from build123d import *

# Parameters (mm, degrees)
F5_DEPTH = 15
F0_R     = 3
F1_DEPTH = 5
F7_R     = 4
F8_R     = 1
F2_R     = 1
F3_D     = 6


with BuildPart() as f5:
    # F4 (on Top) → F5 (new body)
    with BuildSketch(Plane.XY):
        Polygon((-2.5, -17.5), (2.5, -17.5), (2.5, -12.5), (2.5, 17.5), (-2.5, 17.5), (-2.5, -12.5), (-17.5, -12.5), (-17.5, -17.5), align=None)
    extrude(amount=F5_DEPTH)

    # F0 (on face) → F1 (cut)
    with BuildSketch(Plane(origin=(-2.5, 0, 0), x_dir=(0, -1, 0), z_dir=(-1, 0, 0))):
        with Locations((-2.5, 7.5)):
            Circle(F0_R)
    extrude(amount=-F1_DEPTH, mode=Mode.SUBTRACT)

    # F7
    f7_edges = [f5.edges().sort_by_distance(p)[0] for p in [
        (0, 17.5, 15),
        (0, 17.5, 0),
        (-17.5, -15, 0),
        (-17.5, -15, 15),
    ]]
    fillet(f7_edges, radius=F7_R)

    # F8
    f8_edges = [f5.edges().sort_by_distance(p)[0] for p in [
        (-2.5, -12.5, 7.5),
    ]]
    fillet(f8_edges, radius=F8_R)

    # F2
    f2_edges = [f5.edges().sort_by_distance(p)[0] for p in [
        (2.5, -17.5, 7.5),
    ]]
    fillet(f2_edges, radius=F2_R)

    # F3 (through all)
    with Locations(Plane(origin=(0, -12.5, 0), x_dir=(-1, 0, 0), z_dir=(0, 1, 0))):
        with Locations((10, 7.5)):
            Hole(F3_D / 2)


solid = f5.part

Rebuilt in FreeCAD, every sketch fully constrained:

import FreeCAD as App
import Part
import Sketcher
from FreeCAD import Vector
Q = App.Units.Quantity


def edges_at(feature, points):
    """Names of the edges that pass closest to the given points."""
    edges = feature.Shape.Edges
    near = lambda p: min(range(len(edges)), key=lambda i: edges[i].distToShape(Part.Vertex(*p))[0])
    return sorted({f"Edge{near(p) + 1}" for p in points})

doc = App.newDocument("Part")
body = doc.addObject("PartDesign::Body", "Body")

# Sketch on XY plane
sketch1 = body.newObject("Sketcher::SketchObject", "Sketch")
sketch1.AttachmentSupport = (doc.getObject("XY_Plane"), [""])
sketch1.MapMode = "FlatFace"
sketch1.addGeometry(Part.LineSegment(Vector(2, -18, 0), Vector(2, 18, 0)), False)
sketch1.addGeometry(Part.LineSegment(Vector(2, 18, 0), Vector(-2, 18, 0)), False)
sketch1.addGeometry(Part.LineSegment(Vector(-2, 18, 0), Vector(-2, -12, 0)), False)
sketch1.addGeometry(Part.LineSegment(Vector(-2, -12, 0), Vector(-18, -12, 0)), False)
sketch1.addGeometry(Part.LineSegment(Vector(-18, -12, 0), Vector(-18, -18, 0)), False)
sketch1.addGeometry(Part.LineSegment(Vector(-18, -18, 0), Vector(2, -18, 0)), False)
sketch1.addConstraint(Sketcher.Constraint("Coincident", 0, 2, 1, 1))
sketch1.addConstraint(Sketcher.Constraint("Coincident", 1, 2, 2, 1))
sketch1.addConstraint(Sketcher.Constraint("Coincident", 2, 2, 3, 1))
sketch1.addConstraint(Sketcher.Constraint("Coincident", 3, 2, 4, 1))
sketch1.addConstraint(Sketcher.Constraint("Coincident", 4, 2, 5, 1))
sketch1.addConstraint(Sketcher.Constraint("Coincident", 5, 2, 0, 1))
sketch1.addConstraint(Sketcher.Constraint("Vertical", 0))
sketch1.addConstraint(Sketcher.Constraint("Horizontal", 1))
sketch1.addConstraint(Sketcher.Constraint("Vertical", 2))
sketch1.addConstraint(Sketcher.Constraint("Horizontal", 3))
sketch1.addConstraint(Sketcher.Constraint("Vertical", 4))
sketch1.addConstraint(Sketcher.Constraint("Horizontal", 5))
sketch1.addConstraint(Sketcher.Constraint("Symmetric", 1, 2, 5, 2, -1, 1))
sketch1.addConstraint(Sketcher.Constraint("Equal", 1, 4))
sketch1.addConstraint(Sketcher.Constraint("DistanceX", 1, 2, 1, 1, Q("5 mm")))
sketch1.addConstraint(Sketcher.Constraint("DistanceX", 3, 2, 3, 1, Q("15 mm")))
sketch1.addConstraint(Sketcher.Constraint("DistanceY", 0, 1, 0, 2, Q("35 mm")))
pad1 = body.newObject("PartDesign::Pad", "Pad")
pad1.Profile = sketch1
pad1.Length = 15

# Sketch on YZ plane
sketch2 = body.newObject("Sketcher::SketchObject", "Sketch001")
sketch2.AttachmentSupport = (doc.getObject("YZ_Plane"), [""])
sketch2.MapMode = "FlatFace"
sketch2.AttachmentOffset = App.Placement(Vector(0, 0, -2.5), App.Rotation())
sketch2.addGeometry(Part.Circle(Vector(2.5, 7.5, 0), Vector(0, 0, 1), 3), False)
sketch2.addConstraint(Sketcher.Constraint("Diameter", 0, Q("6 mm")))
sketch2.addConstraint(Sketcher.Constraint("DistanceX", -1, 1, 0, 3, Q("2.5 mm")))
sketch2.addConstraint(Sketcher.Constraint("DistanceY", -1, 1, 0, 3, Q("7.5 mm")))
pocket1 = body.newObject("PartDesign::Pocket", "Pocket")
pocket1.Profile = sketch2
pocket1.Length = 5
pocket1.Reversed = True
doc.recompute()

fillet = body.newObject("PartDesign::Fillet", "Fillet")
fillet.Base = (pocket1, edges_at(pocket1, [
    (0, 17.5, 15),
    (0, 17.5, 0),
    (-17.5, -15, 0),
    (-17.5, -15, 15),
]))
fillet.Radius = 4
doc.recompute()

fillet2 = body.newObject("PartDesign::Fillet", "Fillet001")
fillet2.Base = (fillet, edges_at(fillet, [(-2.5, -12.5, 7.5)]))
fillet2.Radius = 1
doc.recompute()

fillet3 = body.newObject("PartDesign::Fillet", "Fillet002")
fillet3.Base = (fillet2, edges_at(fillet2, [(2.5, -17.5, 7.5)]))
fillet3.Radius = 1

# Sketch on XZ plane
sketch3 = body.newObject("Sketcher::SketchObject", "Sketch002")
sketch3.AttachmentSupport = (doc.getObject("XZ_Plane"), [""])
sketch3.MapMode = "FlatFace"
sketch3.AttachmentOffset = App.Placement(Vector(0, 0, 12.5), App.Rotation())
sketch3.addGeometry(Part.Circle(Vector(-10, 7.5, 0), Vector(0, 0, 1), 3), False)
sketch3.addConstraint(Sketcher.Constraint("Diameter", 0, Q("6 mm")))
sketch3.addConstraint(Sketcher.Constraint("DistanceX", 0, 3, -1, 1, Q("10 mm")))
sketch3.addConstraint(Sketcher.Constraint("DistanceY", -1, 1, 0, 3, Q("7.5 mm")))
doc.recompute()
hole = body.newObject("PartDesign::Hole", "Hole")
hole.Profile = sketch3
hole.ThreadType = "None"
hole.Diameter = 6
hole.DepthType = "ThroughAll"
hole.Reversed = True

doc.recompute()
